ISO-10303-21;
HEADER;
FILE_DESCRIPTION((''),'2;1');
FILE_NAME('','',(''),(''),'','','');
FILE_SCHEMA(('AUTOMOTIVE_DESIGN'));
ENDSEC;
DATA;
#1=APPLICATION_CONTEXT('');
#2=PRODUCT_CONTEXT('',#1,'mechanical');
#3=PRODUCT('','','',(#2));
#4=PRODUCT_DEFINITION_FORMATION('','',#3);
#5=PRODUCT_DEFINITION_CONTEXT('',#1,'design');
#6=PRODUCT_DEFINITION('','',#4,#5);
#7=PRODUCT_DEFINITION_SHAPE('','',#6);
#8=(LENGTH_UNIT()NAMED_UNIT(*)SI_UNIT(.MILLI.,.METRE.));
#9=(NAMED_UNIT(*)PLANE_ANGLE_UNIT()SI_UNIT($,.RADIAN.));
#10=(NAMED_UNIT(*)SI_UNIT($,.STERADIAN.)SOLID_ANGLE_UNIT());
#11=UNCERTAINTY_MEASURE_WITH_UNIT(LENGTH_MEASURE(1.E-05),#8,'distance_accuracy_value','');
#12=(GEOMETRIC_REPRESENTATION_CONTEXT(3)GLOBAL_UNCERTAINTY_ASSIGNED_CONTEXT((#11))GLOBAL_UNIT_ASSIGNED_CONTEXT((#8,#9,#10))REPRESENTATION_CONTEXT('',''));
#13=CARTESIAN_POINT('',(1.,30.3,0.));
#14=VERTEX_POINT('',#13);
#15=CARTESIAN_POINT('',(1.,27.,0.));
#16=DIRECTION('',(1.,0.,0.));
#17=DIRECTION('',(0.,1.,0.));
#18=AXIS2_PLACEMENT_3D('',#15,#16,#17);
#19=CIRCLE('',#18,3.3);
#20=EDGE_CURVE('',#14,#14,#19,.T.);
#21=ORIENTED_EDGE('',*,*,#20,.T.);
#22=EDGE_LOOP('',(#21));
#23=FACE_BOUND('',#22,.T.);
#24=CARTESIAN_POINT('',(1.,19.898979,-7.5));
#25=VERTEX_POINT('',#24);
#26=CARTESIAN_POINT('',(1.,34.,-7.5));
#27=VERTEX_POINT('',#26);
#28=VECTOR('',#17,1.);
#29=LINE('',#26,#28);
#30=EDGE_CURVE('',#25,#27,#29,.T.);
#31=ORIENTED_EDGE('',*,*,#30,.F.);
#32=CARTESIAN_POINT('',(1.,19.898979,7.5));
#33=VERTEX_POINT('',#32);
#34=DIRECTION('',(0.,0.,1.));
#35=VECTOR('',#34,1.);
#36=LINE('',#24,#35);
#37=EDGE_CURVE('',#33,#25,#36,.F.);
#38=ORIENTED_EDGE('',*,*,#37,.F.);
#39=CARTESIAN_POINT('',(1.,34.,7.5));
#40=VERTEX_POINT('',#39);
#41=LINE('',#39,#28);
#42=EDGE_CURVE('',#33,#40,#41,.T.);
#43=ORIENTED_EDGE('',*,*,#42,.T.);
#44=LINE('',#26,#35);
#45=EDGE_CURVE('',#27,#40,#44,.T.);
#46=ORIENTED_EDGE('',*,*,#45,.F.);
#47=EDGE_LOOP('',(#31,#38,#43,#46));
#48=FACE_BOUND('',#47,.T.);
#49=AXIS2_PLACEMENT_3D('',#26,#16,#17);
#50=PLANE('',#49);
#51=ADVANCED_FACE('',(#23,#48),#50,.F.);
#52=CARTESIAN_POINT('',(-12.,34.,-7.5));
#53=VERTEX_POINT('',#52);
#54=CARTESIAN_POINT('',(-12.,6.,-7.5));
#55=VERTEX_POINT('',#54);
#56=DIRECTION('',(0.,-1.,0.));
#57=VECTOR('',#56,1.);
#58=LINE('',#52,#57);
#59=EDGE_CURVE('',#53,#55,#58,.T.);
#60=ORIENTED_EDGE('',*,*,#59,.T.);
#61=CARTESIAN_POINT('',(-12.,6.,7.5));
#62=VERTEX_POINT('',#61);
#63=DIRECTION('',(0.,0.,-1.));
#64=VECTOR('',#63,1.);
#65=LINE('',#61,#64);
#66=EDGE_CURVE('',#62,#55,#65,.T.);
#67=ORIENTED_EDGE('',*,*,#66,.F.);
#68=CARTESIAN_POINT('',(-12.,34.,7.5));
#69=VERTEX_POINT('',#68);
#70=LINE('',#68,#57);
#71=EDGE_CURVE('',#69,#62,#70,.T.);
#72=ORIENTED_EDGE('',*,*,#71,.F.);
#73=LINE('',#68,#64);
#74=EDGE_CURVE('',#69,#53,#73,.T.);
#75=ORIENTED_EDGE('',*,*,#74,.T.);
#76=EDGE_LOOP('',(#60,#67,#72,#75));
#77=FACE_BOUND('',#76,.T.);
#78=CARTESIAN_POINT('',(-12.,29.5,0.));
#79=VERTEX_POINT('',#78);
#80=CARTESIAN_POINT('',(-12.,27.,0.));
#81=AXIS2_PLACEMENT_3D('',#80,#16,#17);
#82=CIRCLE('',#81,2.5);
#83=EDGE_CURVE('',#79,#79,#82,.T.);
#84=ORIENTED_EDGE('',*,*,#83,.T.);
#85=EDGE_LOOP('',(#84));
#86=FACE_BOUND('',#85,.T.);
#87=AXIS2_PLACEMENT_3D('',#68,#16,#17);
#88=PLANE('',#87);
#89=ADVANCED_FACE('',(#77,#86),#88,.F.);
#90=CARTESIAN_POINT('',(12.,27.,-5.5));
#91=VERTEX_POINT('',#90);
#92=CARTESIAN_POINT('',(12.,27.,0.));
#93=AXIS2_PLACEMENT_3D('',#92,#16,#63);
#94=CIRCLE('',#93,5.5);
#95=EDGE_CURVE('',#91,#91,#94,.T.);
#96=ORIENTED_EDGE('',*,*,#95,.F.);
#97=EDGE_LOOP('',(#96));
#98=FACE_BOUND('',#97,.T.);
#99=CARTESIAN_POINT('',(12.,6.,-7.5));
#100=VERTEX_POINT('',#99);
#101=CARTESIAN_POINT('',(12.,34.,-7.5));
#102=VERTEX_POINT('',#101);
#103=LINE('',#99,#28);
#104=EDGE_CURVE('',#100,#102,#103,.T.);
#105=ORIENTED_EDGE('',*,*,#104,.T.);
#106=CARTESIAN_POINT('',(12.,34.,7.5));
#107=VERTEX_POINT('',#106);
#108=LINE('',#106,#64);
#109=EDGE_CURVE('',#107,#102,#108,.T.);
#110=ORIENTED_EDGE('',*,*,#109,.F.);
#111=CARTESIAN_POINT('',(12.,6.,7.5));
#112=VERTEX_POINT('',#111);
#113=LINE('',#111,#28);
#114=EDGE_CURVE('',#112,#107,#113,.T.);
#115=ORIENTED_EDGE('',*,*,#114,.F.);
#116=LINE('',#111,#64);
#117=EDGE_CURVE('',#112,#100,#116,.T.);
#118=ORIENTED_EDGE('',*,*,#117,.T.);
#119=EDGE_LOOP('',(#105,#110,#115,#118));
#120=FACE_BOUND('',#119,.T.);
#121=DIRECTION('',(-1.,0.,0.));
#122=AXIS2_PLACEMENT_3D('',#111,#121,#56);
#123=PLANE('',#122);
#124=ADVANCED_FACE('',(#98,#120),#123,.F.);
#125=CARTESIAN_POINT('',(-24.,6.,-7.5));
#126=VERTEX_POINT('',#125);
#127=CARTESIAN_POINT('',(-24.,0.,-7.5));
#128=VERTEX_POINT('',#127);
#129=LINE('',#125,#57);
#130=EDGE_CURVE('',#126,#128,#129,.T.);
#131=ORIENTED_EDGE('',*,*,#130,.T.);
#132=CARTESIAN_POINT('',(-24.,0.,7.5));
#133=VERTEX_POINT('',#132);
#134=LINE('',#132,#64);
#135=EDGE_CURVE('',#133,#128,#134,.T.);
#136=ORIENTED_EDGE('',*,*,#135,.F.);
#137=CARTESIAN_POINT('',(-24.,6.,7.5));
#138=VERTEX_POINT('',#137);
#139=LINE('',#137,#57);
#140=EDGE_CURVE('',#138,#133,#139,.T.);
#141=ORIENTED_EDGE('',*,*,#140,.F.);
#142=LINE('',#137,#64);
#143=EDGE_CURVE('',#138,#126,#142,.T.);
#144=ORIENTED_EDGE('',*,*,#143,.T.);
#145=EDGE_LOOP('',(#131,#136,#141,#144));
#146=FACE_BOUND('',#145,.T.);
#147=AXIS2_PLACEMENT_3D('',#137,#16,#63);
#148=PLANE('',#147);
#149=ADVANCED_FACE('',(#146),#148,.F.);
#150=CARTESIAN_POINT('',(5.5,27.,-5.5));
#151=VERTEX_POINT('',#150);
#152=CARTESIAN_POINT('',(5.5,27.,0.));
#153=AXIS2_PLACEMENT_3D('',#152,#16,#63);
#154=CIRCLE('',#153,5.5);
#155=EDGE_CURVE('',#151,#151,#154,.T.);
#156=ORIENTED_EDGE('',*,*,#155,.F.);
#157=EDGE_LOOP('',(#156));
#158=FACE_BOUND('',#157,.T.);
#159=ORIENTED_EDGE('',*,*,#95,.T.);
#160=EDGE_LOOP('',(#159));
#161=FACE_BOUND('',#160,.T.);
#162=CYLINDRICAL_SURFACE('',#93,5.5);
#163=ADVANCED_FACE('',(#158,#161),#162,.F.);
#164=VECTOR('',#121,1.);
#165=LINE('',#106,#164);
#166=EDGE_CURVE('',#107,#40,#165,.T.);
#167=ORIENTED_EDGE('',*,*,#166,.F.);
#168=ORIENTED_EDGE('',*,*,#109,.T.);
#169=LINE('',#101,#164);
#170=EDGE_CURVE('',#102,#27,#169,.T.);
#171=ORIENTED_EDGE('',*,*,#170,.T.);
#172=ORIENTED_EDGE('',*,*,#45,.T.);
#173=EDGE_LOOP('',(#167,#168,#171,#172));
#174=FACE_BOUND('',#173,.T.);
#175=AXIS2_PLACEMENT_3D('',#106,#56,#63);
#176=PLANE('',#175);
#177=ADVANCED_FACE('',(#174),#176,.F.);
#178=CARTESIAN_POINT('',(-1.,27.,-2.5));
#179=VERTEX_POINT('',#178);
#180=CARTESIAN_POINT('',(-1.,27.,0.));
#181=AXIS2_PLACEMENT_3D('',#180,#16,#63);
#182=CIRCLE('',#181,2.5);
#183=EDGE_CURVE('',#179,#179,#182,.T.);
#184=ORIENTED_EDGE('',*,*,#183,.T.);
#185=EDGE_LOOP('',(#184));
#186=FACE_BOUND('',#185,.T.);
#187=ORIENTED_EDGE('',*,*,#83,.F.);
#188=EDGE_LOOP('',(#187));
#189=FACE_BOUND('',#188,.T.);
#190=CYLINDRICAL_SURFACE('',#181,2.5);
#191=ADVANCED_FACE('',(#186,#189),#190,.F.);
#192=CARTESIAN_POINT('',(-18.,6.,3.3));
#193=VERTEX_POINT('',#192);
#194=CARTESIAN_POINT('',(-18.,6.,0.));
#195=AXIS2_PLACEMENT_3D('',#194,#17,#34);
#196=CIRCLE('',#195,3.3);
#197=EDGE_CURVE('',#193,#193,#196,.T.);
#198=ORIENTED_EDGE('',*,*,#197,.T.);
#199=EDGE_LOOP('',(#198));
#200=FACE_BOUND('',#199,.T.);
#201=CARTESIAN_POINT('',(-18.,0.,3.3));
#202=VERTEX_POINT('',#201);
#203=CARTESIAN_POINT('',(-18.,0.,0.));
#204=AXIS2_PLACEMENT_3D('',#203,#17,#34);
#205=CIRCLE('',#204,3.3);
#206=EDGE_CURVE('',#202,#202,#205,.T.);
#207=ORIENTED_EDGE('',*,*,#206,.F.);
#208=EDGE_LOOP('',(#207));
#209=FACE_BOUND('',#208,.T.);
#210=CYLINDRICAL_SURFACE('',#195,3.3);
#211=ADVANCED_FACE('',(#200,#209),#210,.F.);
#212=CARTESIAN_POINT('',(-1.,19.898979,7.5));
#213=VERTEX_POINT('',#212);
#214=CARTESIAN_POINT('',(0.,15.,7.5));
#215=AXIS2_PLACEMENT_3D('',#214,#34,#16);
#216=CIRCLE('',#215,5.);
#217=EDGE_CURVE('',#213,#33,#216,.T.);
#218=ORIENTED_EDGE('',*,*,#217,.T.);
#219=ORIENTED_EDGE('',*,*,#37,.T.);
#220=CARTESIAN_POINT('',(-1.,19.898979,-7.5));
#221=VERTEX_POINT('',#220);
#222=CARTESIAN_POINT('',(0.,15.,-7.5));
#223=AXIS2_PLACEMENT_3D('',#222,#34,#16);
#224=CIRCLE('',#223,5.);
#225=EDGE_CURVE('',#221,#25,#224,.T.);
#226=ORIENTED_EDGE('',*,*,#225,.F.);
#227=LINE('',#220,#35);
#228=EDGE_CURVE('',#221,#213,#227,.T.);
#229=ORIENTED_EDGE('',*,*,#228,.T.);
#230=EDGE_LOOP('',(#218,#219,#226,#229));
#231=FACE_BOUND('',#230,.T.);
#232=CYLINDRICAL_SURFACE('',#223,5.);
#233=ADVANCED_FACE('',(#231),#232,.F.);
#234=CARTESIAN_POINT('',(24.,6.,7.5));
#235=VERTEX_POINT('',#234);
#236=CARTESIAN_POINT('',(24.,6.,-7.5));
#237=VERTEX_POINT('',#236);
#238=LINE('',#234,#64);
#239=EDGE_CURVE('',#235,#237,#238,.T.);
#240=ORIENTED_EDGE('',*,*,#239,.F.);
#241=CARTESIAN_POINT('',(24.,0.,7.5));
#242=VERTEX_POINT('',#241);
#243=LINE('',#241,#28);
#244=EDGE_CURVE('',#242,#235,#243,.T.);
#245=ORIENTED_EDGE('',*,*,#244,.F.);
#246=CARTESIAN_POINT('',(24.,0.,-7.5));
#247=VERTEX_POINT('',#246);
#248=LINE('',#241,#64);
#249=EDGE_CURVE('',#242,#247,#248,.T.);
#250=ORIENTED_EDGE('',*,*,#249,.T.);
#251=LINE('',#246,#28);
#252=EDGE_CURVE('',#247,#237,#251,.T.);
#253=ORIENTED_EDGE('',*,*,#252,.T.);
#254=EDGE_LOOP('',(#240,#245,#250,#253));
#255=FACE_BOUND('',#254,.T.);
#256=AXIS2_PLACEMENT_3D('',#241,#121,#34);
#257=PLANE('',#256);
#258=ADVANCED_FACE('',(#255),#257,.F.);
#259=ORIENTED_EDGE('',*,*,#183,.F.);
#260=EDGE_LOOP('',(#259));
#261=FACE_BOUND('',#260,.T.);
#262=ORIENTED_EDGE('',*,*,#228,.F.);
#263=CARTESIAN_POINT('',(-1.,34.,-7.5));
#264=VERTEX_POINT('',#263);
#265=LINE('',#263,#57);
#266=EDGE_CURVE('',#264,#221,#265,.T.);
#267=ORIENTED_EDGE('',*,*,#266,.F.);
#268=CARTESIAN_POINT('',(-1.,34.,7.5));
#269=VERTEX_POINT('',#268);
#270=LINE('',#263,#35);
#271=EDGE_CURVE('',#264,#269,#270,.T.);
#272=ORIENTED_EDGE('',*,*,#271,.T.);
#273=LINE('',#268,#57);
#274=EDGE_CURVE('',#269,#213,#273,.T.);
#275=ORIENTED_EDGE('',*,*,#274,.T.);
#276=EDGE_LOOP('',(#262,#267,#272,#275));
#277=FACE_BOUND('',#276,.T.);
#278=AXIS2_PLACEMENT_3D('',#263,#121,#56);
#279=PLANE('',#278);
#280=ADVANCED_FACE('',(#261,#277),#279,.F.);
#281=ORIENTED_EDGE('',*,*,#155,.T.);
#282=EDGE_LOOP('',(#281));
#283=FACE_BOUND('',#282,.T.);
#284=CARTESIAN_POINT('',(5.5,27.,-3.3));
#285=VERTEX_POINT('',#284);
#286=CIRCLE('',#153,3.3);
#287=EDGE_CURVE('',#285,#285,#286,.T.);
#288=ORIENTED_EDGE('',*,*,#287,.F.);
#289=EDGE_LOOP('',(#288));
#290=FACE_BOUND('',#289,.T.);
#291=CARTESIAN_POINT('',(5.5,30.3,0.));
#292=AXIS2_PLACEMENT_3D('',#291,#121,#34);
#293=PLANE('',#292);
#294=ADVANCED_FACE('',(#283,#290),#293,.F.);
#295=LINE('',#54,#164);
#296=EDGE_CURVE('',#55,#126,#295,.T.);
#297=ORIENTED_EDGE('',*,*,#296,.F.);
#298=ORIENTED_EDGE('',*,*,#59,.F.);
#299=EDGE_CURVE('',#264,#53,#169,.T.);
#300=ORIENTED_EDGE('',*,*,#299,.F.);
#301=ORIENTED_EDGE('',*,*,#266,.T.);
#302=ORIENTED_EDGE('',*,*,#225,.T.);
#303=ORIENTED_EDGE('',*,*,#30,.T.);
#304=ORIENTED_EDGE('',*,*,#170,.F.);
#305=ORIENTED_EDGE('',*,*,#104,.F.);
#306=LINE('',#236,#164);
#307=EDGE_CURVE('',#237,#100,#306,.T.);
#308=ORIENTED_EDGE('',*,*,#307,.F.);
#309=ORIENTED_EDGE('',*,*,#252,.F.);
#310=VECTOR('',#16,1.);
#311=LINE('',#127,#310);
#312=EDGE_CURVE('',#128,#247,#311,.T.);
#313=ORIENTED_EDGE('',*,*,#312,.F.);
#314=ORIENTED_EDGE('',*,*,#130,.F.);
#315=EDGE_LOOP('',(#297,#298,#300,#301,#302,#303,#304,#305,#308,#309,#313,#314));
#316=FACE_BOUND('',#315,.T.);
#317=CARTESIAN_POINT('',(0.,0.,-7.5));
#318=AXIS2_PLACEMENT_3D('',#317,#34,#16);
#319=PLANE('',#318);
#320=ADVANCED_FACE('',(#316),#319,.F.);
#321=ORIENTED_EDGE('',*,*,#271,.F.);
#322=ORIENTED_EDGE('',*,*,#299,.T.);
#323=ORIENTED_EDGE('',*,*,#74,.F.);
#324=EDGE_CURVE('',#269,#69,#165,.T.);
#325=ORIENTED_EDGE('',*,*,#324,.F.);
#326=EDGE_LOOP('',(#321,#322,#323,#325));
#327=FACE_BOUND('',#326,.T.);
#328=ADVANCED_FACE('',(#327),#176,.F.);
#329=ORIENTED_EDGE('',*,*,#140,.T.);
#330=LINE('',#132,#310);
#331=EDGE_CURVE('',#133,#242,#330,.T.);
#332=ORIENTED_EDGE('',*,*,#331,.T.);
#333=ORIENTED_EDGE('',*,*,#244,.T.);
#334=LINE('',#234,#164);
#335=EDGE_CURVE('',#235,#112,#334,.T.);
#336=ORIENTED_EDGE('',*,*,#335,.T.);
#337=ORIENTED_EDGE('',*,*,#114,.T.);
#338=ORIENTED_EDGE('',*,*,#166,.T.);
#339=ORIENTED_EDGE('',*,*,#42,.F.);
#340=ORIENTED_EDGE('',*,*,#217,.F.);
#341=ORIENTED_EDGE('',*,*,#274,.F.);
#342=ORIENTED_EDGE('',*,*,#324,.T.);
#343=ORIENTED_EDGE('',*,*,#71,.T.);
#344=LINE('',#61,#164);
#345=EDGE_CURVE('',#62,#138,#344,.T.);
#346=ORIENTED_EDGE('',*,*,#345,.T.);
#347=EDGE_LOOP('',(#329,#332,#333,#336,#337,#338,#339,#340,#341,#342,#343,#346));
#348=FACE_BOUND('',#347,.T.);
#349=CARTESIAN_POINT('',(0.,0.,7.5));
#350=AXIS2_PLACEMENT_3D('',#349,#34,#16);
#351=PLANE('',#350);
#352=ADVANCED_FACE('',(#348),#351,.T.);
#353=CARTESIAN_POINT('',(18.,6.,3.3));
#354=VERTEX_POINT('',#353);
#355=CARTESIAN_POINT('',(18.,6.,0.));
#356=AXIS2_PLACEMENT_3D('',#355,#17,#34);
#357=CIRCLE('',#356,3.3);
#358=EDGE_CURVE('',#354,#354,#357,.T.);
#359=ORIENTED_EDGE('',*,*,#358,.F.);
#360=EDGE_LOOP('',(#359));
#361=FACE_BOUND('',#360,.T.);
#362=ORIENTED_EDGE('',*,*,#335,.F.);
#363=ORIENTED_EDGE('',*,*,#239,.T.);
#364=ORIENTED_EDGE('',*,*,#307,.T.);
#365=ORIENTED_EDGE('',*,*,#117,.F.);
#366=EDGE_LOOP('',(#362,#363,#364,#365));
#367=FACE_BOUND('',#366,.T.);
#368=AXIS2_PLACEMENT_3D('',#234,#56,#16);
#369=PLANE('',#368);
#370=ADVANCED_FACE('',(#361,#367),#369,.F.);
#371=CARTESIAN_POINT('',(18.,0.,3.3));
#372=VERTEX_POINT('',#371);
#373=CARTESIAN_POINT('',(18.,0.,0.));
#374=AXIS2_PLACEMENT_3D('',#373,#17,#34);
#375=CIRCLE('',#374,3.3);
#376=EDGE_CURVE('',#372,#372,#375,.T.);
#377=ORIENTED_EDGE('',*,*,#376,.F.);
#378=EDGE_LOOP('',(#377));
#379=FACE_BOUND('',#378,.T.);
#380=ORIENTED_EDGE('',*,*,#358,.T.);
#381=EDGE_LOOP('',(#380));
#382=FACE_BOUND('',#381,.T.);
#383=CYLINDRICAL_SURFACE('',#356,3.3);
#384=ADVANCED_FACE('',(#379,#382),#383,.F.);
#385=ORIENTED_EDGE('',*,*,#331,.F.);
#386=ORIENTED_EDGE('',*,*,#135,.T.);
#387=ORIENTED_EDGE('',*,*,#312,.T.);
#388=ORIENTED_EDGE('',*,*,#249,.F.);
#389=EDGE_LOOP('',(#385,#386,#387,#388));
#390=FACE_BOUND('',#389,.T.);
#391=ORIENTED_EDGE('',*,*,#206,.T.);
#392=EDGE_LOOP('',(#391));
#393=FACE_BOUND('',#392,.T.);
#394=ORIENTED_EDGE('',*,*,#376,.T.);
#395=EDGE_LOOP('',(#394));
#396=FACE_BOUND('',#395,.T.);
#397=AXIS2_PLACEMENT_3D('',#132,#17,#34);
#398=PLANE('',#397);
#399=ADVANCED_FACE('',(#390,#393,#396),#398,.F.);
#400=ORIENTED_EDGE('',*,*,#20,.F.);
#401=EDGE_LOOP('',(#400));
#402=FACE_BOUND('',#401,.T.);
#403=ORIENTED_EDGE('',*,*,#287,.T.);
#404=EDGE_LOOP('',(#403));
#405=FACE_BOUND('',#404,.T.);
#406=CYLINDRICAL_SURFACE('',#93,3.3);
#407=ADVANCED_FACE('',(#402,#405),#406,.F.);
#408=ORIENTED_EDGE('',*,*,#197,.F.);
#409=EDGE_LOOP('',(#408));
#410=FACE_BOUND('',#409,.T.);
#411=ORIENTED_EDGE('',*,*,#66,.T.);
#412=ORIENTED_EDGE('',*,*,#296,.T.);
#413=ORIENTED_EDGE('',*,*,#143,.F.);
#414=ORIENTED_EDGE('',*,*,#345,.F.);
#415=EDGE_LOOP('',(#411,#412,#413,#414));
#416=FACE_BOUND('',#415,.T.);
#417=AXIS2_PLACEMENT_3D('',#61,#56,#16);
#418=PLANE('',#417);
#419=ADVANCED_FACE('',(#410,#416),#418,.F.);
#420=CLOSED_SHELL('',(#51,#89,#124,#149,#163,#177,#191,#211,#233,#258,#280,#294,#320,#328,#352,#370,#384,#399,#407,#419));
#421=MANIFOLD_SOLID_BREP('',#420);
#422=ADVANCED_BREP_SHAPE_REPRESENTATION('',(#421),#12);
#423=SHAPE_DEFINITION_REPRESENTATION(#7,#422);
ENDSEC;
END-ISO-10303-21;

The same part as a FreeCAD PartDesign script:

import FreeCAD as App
import Part
import Sketcher


def add_polygon(sketch, points):
    """Adds a closed chain of lines whose ends are joined by coincident constraints."""
    first, n = sketch.GeometryCount, len(points)
    for a, b in zip(points, points[1:] + points[:1]):
        sketch.addGeometry(Part.LineSegment(App.Vector(*a, 0), App.Vector(*b, 0)), False)
    for i in range(n):
        sketch.addConstraint(Sketcher.Constraint("Coincident", first + i, 2, first + (i + 1) % n, 1))

doc = App.newDocument("Part")
params = doc.addObject("Spreadsheet::Sheet", "Params")
for row, (alias, value) in enumerate([
    ("sketch1_width", "48 mm"),
    ("sketch1_width2", "12 mm"),
    ("sketch1_height", "6 mm"),
    ("sketch1_height2", "28 mm"),
    ("pad1_length", "15 mm"),
    ("sketch2_diameter", "10 mm"),
    ("sketch3_width", "2 mm"),
    ("sketch3_height", "19 mm"),
    ("sketch4_diameter", "6.6 mm"),
    ("hole_diameter", "6.6 mm"),
    ("hole_depth", "11 mm"),
    ("hole_cbore_diameter", "11 mm"),
    ("hole_cbore_depth", "6.5 mm"),
    ("sketch5_diameter", "5 mm"),
    ("hole2_diameter", "5 mm"),
    ("sketch6_diameter", "6.6 mm"),
    ("hole3_diameter", "6.6 mm"),
], start=1):
    params.set(f"A{row}", alias)
    params.set(f"B{row}", "=" + value)
    params.setAlias(f"B{row}", alias)

body = doc.addObject("PartDesign::Body", "Body")

sketch1 = body.newObject("Sketcher::SketchObject", "Sketch")
sketch1.AttachmentSupport = (doc.getObject("XY_Plane"), [""])
sketch1.MapMode = "FlatFace"
add_polygon(sketch1, [(-24, 0), (24, 0), (24, 6), (12, 6), (12, 34), (-12, 34), (-12, 6), (-24, 6)])
sketch1.addConstraint(Sketcher.Constraint("Horizontal", 0))
sketch1.addConstraint(Sketcher.Constraint("Vertical", 1))
sketch1.addConstraint(Sketcher.Constraint("Horizontal", 2))
sketch1.addConstraint(Sketcher.Constraint("Vertical", 3))
sketch1.addConstraint(Sketcher.Constraint("Horizontal", 4))
sketch1.addConstraint(Sketcher.Constraint("Vertical", 5))
sketch1.addConstraint(Sketcher.Constraint("Horizontal", 6))
sketch1.addConstraint(Sketcher.Constraint("Vertical", 7))
sketch1.addConstraint(Sketcher.Constraint("Symmetric", 0, 2, 7, 2, -1, 1))
sketch1.addConstraint(Sketcher.Constraint("Symmetric", 2, 2, 5, 2, -2))
sketch1.addConstraint(Sketcher.Constraint("DistanceX", 0, 1, 0, 2, 48.0))
sketch1.addConstraint(Sketcher.Constraint("DistanceX", 2, 2, 2, 1, 12.0))
sketch1.addConstraint(Sketcher.Constraint("DistanceY", 1, 1, 1, 2, 6.0))
sketch1.addConstraint(Sketcher.Constraint("DistanceY", 3, 1, 3, 2, 28.0))
sketch1.setExpression("Constraints[18]", "Params.sketch1_width")
sketch1.setExpression("Constraints[19]", "Params.sketch1_width2")
sketch1.setExpression("Constraints[20]", "Params.sketch1_height")
sketch1.setExpression("Constraints[21]", "Params.sketch1_height2")
pad1 = body.newObject("PartDesign::Pad", "Pad")
pad1.Profile = sketch1
pad1.setExpression("Length", "Params.pad1_length")
pad1.Midplane = True

sketch2 = body.newObject("Sketcher::SketchObject", "Sketch001")
sketch2.AttachmentSupport = (doc.getObject("XY_Plane"), [""])
sketch2.MapMode = "FlatFace"
sketch2.AttachmentOffset = App.Placement(App.Vector(0, 0, 7.5), App.Rotation())
sketch2.addGeometry(Part.Circle(App.Vector(0, 15, 0), App.Vector(0, 0, 1), 5), False)
sketch2.addConstraint(Sketcher.Constraint("PointOnObject", 0, 3, -2))
sketch2.addConstraint(Sketcher.Constraint("Diameter", 0, 10.0))
sketch2.addConstraint(Sketcher.Constraint("DistanceY", -1, 1, 0, 3, 15.0))
sketch2.setExpression("Constraints[1]", "Params.sketch2_diameter")
pocket1 = body.newObject("PartDesign::Pocket", "Pocket")
pocket1.Profile = sketch2
pocket1.Type = "ThroughAll"

sketch3 = body.newObject("Sketcher::SketchObject", "Sketch002")
sketch3.AttachmentSupport = (doc.getObject("XY_Plane"), [""])
sketch3.MapMode = "FlatFace"
sketch3.AttachmentOffset = App.Placement(App.Vector(0, 0, 7.5), App.Rotation())
add_polygon(sketch3, [(-1, 34), (-1, 15), (1, 15), (1, 34)])
sketch3.addConstraint(Sketcher.Constraint("Vertical", 0))
sketch3.addConstraint(Sketcher.Constraint("Horizontal", 1))
sketch3.addConstraint(Sketcher.Constraint("Vertical", 2))
sketch3.addConstraint(Sketcher.Constraint("Horizontal", 3))
sketch3.addConstraint(Sketcher.Constraint("DistanceX", 1, 1, 1, 2, 2.0))
sketch3.addConstraint(Sketcher.Constraint("DistanceY", 0, 2, 0, 1, 19.0))
sketch3.addConstraint(Sketcher.Constraint("DistanceX", 0, 2, -1, 1, 1.0))
sketch3.addConstraint(Sketcher.Constraint("DistanceY", -1, 1, 0, 2, 15.0))
sketch3.setExpression("Constraints[8]", "Params.sketch3_width")
sketch3.setExpression("Constraints[9]", "Params.sketch3_height")
pocket2 = body.newObject("PartDesign::Pocket", "Pocket001")
pocket2.Profile = sketch3
pocket2.Type = "ThroughAll"

sketch4 = body.newObject("Sketcher::SketchObject", "Sketch003")
sketch4.AttachmentSupport = (doc.getObject("YZ_Plane"), [""])
sketch4.MapMode = "FlatFace"
sketch4.AttachmentOffset = App.Placement(App.Vector(0, 0, 12), App.Rotation())
sketch4.addGeometry(Part.Circle(App.Vector(27, 0, 0), App.Vector(0, 0, 1), 3.3), False)
sketch4.addConstraint(Sketcher.Constraint("PointOnObject", 0, 3, -1))
sketch4.addConstraint(Sketcher.Constraint("Diameter", 0, 6.6))
sketch4.addConstraint(Sketcher.Constraint("DistanceX", -1, 1, 0, 3, 27.0))
sketch4.setExpression("Constraints[1]", "Params.sketch4_diameter")
doc.recompute()
hole = body.newObject("PartDesign::Hole", "Hole")
hole.Profile = sketch4
hole.ThreadType = "None"
hole.setExpression("Diameter", "Params.hole_diameter")
hole.DepthType = "Dimension"
hole.setExpression("Depth", "Params.hole_depth")
hole.DrillPoint = "Flat"
hole.HoleCutType = "Counterbore"
hole.setExpression("HoleCutDiameter", "Params.hole_cbore_diameter")
hole.setExpression("HoleCutDepth", "Params.hole_cbore_depth")

sketch5 = body.newObject("Sketcher::SketchObject", "Sketch004")
sketch5.AttachmentSupport = (doc.getObject("YZ_Plane"), [""])
sketch5.MapMode = "FlatFace"
sketch5.AttachmentOffset = App.Placement(App.Vector(0, 0, -1), App.Rotation())
sketch5.addGeometry(Part.Circle(App.Vector(27, 0, 0), App.Vector(0, 0, 1), 2.5), False)
sketch5.addConstraint(Sketcher.Constraint("PointOnObject", 0, 3, -1))
sketch5.addConstraint(Sketcher.Constraint("Diameter", 0, 5.0))
sketch5.addConstraint(Sketcher.Constraint("DistanceX", -1, 1, 0, 3, 27.0))
sketch5.setExpression("Constraints[1]", "Params.sketch5_diameter")
doc.recompute()
hole2 = body.newObject("PartDesign::Hole", "Hole001")
hole2.Profile = sketch5
hole2.ThreadType = "None"
hole2.setExpression("Diameter", "Params.hole2_diameter")
hole2.DepthType = "ThroughAll"

sketch6 = body.newObject("Sketcher::SketchObject", "Sketch005")
sketch6.AttachmentSupport = (doc.getObject("XZ_Plane"), [""])
sketch6.MapMode = "FlatFace"
sketch6.AttachmentOffset = App.Placement(App.Vector(0, 0, -6), App.Rotation())
sketch6.addGeometry(Part.Circle(App.Vector(18, 0, 0), App.Vector(0, 0, 1), 3.3), False)
sketch6.addGeometry(Part.Circle(App.Vector(-18, 0, 0), App.Vector(0, 0, 1), 3.3), False)
sketch6.addConstraint(Sketcher.Constraint("Equal", 0, 1))
sketch6.addConstraint(Sketcher.Constraint("Symmetric", 0, 3, 1, 3, -1, 1))
sketch6.addConstraint(Sketcher.Constraint("PointOnObject", 0, 3, -1))
sketch6.addConstraint(Sketcher.Constraint("Diameter", 0, 6.6))
sketch6.addConstraint(Sketcher.Constraint("DistanceX", -1, 1, 0, 3, 18.0))
sketch6.setExpression("Constraints[3]", "Params.sketch6_diameter")
doc.recompute()
hole3 = body.newObject("PartDesign::Hole", "Hole002")
hole3.Profile = sketch6
hole3.ThreadType = "None"
hole3.setExpression("Diameter", "Params.hole3_diameter")
hole3.DepthType = "ThroughAll"
hole3.Reversed = True

doc.recompute()
